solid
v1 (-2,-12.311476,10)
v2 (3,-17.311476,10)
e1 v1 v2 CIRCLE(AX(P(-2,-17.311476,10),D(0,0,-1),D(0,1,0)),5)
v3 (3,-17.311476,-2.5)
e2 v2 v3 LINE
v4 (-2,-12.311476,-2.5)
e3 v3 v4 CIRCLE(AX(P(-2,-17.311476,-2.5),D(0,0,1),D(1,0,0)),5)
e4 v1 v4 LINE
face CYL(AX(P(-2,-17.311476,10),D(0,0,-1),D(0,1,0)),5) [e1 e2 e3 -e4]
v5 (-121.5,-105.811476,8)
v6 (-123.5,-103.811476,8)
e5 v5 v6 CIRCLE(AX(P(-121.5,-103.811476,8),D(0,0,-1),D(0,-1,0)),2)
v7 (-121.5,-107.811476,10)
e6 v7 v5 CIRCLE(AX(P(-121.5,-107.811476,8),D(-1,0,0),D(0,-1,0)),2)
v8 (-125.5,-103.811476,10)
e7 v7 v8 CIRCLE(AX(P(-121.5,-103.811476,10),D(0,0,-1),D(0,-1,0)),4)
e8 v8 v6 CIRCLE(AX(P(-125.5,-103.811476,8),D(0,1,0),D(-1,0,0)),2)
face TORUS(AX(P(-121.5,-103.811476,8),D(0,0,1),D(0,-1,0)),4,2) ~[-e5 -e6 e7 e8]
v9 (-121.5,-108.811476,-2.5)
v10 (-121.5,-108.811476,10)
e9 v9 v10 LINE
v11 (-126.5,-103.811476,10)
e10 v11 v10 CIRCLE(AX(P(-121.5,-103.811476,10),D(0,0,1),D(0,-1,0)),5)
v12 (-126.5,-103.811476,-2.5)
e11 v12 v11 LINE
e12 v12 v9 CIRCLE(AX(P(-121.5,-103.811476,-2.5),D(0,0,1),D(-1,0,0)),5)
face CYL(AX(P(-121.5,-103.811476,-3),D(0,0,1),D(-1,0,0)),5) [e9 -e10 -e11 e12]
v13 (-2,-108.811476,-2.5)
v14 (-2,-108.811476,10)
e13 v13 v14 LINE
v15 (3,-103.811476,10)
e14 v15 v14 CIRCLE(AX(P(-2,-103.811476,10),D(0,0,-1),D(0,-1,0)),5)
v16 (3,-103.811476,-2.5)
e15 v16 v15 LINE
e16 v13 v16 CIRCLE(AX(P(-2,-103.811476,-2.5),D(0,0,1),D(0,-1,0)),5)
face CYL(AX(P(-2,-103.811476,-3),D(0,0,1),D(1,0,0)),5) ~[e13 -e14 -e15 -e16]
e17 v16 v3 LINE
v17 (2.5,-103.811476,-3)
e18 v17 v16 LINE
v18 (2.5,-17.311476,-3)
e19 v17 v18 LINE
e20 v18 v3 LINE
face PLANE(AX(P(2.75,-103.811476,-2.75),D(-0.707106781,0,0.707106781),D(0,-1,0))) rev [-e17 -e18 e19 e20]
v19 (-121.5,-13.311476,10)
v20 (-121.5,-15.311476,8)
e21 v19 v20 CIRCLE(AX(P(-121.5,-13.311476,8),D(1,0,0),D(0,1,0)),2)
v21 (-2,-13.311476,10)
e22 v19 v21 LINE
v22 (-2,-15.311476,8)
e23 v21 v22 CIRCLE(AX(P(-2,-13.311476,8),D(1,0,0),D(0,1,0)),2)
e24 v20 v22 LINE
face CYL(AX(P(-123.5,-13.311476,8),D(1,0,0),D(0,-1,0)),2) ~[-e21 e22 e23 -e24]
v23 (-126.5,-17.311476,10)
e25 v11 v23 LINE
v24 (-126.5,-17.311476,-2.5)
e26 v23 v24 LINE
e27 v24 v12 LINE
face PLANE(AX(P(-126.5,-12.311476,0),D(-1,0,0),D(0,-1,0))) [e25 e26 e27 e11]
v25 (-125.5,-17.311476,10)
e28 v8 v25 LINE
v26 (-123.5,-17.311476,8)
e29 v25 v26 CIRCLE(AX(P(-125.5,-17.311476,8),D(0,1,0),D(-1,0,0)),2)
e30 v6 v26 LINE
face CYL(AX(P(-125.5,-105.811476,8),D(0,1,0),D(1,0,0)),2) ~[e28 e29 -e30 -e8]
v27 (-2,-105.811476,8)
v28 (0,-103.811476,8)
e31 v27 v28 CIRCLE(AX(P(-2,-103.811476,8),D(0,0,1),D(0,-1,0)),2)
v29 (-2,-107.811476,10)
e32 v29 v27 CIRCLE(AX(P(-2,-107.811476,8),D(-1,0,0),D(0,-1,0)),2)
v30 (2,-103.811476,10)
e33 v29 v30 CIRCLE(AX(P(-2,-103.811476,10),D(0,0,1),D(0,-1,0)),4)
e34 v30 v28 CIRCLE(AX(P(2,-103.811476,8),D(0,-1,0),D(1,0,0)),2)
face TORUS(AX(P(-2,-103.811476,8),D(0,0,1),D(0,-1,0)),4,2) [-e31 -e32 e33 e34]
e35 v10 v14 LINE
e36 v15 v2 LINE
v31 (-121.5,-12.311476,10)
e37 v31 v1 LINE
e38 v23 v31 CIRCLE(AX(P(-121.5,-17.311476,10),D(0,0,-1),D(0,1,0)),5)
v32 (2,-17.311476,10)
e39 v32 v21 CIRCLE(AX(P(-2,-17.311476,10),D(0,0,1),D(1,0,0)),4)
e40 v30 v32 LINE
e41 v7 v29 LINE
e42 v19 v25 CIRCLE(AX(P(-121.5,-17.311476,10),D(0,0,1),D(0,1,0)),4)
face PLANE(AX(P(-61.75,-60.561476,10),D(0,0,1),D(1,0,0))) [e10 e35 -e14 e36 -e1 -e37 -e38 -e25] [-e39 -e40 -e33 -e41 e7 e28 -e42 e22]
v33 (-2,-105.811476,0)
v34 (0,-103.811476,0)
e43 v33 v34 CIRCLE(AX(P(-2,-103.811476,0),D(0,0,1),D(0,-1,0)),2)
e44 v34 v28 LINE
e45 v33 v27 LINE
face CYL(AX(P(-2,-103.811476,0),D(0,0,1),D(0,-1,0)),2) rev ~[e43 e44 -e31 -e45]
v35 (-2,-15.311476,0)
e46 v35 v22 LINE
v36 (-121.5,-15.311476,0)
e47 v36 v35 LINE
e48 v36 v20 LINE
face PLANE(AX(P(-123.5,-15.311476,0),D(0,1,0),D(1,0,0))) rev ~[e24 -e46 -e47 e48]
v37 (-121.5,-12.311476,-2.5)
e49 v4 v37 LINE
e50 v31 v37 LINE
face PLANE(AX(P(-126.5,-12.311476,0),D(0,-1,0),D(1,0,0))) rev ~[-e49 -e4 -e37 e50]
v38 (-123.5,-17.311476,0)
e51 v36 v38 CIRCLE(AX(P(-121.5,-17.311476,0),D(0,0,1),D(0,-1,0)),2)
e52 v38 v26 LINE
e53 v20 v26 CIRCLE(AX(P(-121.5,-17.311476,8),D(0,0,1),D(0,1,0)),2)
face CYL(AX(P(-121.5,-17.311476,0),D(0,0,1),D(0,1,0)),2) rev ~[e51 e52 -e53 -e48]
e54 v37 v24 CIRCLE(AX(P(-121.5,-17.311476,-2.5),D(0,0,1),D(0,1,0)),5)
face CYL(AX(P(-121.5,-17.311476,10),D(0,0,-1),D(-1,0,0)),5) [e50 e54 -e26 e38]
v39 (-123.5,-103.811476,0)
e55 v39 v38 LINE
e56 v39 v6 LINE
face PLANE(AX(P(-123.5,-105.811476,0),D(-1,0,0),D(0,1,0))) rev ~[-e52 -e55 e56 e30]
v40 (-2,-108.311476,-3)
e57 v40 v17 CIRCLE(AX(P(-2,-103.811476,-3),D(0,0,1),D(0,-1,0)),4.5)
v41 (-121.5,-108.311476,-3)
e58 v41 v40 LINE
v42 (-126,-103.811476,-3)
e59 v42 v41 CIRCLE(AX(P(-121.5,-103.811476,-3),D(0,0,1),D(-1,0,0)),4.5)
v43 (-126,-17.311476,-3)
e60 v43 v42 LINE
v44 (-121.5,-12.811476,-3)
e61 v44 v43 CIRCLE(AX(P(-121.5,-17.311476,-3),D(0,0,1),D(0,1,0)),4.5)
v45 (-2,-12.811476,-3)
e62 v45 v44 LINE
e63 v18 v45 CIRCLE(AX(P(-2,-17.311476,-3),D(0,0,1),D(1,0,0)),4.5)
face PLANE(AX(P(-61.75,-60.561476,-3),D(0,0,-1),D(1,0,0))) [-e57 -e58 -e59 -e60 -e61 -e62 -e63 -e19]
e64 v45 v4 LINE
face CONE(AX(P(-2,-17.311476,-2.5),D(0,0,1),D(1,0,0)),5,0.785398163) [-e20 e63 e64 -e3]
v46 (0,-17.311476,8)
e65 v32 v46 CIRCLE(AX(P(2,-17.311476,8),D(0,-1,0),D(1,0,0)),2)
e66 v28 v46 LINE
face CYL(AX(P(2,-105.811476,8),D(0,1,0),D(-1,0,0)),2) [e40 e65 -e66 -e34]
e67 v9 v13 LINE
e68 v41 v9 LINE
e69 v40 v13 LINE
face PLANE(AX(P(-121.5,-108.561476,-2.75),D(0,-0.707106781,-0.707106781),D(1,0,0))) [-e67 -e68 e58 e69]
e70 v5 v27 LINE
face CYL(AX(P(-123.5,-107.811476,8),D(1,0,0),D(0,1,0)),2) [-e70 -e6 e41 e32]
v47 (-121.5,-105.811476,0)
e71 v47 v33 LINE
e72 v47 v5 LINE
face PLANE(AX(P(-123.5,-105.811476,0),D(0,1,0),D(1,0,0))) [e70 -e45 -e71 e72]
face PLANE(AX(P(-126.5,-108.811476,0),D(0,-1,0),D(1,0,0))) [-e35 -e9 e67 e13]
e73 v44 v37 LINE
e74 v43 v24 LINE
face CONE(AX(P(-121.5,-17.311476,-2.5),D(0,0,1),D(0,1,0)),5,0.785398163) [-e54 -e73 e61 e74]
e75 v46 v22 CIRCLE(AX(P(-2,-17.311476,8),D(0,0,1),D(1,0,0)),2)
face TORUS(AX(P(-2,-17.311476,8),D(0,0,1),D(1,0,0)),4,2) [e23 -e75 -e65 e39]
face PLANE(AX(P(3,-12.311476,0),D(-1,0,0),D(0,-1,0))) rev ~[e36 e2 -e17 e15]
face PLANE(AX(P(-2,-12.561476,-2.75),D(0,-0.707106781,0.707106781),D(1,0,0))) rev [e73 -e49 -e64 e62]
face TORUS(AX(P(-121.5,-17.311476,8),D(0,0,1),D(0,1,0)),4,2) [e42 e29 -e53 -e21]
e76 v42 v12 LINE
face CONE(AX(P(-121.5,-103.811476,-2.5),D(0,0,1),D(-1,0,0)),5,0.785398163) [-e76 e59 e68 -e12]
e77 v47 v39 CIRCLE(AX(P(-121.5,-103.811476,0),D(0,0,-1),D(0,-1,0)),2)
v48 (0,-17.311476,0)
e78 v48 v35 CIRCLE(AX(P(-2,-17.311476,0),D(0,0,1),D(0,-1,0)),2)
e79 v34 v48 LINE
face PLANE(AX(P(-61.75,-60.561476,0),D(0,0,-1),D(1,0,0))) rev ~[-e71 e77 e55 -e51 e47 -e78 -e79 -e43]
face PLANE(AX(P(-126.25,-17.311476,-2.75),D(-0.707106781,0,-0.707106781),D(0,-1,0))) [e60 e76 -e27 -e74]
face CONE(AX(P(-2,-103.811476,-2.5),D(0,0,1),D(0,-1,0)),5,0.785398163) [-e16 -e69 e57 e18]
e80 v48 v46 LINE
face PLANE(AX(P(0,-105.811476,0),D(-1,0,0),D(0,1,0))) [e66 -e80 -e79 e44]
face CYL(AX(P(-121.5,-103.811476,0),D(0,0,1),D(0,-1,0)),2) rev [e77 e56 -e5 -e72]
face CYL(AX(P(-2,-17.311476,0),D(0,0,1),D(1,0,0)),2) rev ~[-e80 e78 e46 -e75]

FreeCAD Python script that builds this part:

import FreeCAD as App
import Part
import Sketcher
from FreeCAD import Vector
Q = App.Units.Quantity


def edges_at(feature, points):
    """Names of the edges that pass closest to the given points."""
    edges = feature.Shape.Edges
    near = lambda p: min(range(len(edges)), key=lambda i: edges[i].distToShape(Part.Vertex(*p))[0])
    return sorted({f"Edge{near(p) + 1}" for p in points})

doc = App.newDocument("Part")
body = doc.addObject("PartDesign::Body", "Body")

sketch1 = body.newObject("Sketcher::SketchObject", "Sketch")
sketch1.AttachmentSupport = (doc.getObject("XY_Plane"), [""])
sketch1.MapMode = "FlatFace"
sketch1.addGeometry([
    Part.LineSegment(Vector(-126, -12, 0), Vector(-126, -109, 0)),
    Part.LineSegment(Vector(-126, -109, 0), Vector(3, -109, 0)),
    Part.LineSegment(Vector(3, -109, 0), Vector(3, -12, 0)),
    Part.LineSegment(Vector(3, -12, 0), Vector(-126, -12, 0)),
    Part.LineSegment(Vector(0, -106, 0), Vector(-124, -106, 0)),
    Part.LineSegment(Vector(-124, -106, 0), Vector(-124, -15, 0)),
    Part.LineSegment(Vector(-124, -15, 0), Vector(0, -15, 0)),
    Part.LineSegment(Vector(0, -15, 0), Vector(0, -106, 0)),
], False)
sketch1.addConstraint([
    Sketcher.Constraint("Coincident", 0, 2, 1, 1),
    Sketcher.Constraint("Coincident", 1, 2, 2, 1),
    Sketcher.Constraint("Coincident", 2, 2, 3, 1),
    Sketcher.Constraint("Coincident", 3, 2, 0, 1),
    Sketcher.Constraint("Coincident", 4, 2, 5, 1),
    Sketcher.Constraint("Coincident", 5, 2, 6, 1),
    Sketcher.Constraint("Coincident", 6, 2, 7, 1),
    Sketcher.Constraint("Coincident", 7, 2, 4, 1),
    Sketcher.Constraint("Vertical", 0),
    Sketcher.Constraint("Horizontal", 1),
    Sketcher.Constraint("Vertical", 2),
    Sketcher.Constraint("Horizontal", 3),
    Sketcher.Constraint("Horizontal", 4),
    Sketcher.Constraint("Vertical", 5),
    Sketcher.Constraint("Horizontal", 6),
    Sketcher.Constraint("Vertical", 7),
    Sketcher.Constraint("PointOnObject", 6, 2, -2),
    Sketcher.Constraint("DistanceX", 1, 1, 1, 2, Q("129.5 mm")),
    Sketcher.Constraint("DistanceX", 4, 2, 4, 1, Q("123.5 mm")),
    Sketcher.Constraint("DistanceY", 0, 2, 0, 1, Q("96.5 mm")),
    Sketcher.Constraint("DistanceY", 5, 1, 5, 2, Q("90.5 mm")),
    Sketcher.Constraint("DistanceX", -1, 1, 1, 2, Q("3 mm")),
    Sketcher.Constraint("DistanceY", 0, 2, 4, 2, Q("3 mm")),
    Sketcher.Constraint("DistanceY", 0, 2, -1, 1, Q("108.811476 mm")),
])
pad1 = body.newObject("PartDesign::Pad", "Pad")
pad1.Profile = sketch1
pad1.Length = 10
doc.recompute()

fillet = body.newObject("PartDesign::Fillet", "Fillet")
fillet.Base = (pad1, edges_at(pad1, [
    (-123.5, -105.811, 5),
    (-61.75, -105.811, 10),
    (-61.75, -15.311, 10),
    (-123.5, -60.561, 10),
    (0, -15.311, 5),
    (0, -60.561, 10),
    (0, -105.811, 5),
    (-123.5, -15.311, 5),
]))
fillet.Radius = 2

sketch2 = body.newObject("Sketcher::SketchObject", "Sketch001")
sketch2.AttachmentSupport = (doc.getObject("XY_Plane"), [""])
sketch2.MapMode = "FlatFace"
sketch2.addGeometry([
    Part.LineSegment(Vector(-126, -109, 0), Vector(-126, -12, 0)),
    Part.LineSegment(Vector(-126, -12, 0), Vector(3, -12, 0)),
    Part.LineSegment(Vector(3, -12, 0), Vector(3, -109, 0)),
    Part.LineSegment(Vector(3, -109, 0), Vector(-126, -109, 0)),
], False)
sketch2.addConstraint([
    Sketcher.Constraint("Coincident", 0, 2, 1, 1),
    Sketcher.Constraint("Coincident", 1, 2, 2, 1),
    Sketcher.Constraint("Coincident", 2, 2, 3, 1),
    Sketcher.Constraint("Coincident", 3, 2, 0, 1),
    Sketcher.Constraint("Vertical", 0),
    Sketcher.Constraint("Horizontal", 1),
    Sketcher.Constraint("Vertical", 2),
    Sketcher.Constraint("Horizontal", 3),
    Sketcher.Constraint("DistanceX", 1, 1, 1, 2, Q("129.5 mm")),
    Sketcher.Constraint("DistanceY", 0, 1, 0, 2, Q("96.5 mm")),
    Sketcher.Constraint("DistanceX", -1, 1, 1, 2, Q("3 mm")),
    Sketcher.Constraint("DistanceY", 0, 2, -1, 1, Q("12.311476 mm")),
])
pad2 = body.newObject("PartDesign::Pad", "Pad001")
pad2.Profile = sketch2
pad2.Length = 3
pad2.Reversed = True
doc.recompute()

fillet2 = body.newObject("PartDesign::Fillet", "Fillet001")
fillet2.Base = (pad2, edges_at(pad2, [
    (-126.5, -108.811, 3.5),
    (3, -108.811, 3.5),
    (3, -12.311, 3.5),
    (-126.5, -12.311, 3.5),
]))
fillet2.Radius = 5
doc.recompute()

chamfer = body.newObject("PartDesign::Chamfer", "Chamfer")
chamfer.Base = (fillet2, edges_at(fillet2, [
    (-125.036, -107.347, -3),
    (-61.75, -108.811, -3),
    (-126.5, -60.561, -3),
    (1.536, -107.347, -3),
    (3, -60.561, -3),
    (-125.036, -13.776, -3),
    (-61.75, -12.311, -3),
    (1.536, -13.776, -3),
]))
chamfer.Size = 0.5

doc.recompute()
